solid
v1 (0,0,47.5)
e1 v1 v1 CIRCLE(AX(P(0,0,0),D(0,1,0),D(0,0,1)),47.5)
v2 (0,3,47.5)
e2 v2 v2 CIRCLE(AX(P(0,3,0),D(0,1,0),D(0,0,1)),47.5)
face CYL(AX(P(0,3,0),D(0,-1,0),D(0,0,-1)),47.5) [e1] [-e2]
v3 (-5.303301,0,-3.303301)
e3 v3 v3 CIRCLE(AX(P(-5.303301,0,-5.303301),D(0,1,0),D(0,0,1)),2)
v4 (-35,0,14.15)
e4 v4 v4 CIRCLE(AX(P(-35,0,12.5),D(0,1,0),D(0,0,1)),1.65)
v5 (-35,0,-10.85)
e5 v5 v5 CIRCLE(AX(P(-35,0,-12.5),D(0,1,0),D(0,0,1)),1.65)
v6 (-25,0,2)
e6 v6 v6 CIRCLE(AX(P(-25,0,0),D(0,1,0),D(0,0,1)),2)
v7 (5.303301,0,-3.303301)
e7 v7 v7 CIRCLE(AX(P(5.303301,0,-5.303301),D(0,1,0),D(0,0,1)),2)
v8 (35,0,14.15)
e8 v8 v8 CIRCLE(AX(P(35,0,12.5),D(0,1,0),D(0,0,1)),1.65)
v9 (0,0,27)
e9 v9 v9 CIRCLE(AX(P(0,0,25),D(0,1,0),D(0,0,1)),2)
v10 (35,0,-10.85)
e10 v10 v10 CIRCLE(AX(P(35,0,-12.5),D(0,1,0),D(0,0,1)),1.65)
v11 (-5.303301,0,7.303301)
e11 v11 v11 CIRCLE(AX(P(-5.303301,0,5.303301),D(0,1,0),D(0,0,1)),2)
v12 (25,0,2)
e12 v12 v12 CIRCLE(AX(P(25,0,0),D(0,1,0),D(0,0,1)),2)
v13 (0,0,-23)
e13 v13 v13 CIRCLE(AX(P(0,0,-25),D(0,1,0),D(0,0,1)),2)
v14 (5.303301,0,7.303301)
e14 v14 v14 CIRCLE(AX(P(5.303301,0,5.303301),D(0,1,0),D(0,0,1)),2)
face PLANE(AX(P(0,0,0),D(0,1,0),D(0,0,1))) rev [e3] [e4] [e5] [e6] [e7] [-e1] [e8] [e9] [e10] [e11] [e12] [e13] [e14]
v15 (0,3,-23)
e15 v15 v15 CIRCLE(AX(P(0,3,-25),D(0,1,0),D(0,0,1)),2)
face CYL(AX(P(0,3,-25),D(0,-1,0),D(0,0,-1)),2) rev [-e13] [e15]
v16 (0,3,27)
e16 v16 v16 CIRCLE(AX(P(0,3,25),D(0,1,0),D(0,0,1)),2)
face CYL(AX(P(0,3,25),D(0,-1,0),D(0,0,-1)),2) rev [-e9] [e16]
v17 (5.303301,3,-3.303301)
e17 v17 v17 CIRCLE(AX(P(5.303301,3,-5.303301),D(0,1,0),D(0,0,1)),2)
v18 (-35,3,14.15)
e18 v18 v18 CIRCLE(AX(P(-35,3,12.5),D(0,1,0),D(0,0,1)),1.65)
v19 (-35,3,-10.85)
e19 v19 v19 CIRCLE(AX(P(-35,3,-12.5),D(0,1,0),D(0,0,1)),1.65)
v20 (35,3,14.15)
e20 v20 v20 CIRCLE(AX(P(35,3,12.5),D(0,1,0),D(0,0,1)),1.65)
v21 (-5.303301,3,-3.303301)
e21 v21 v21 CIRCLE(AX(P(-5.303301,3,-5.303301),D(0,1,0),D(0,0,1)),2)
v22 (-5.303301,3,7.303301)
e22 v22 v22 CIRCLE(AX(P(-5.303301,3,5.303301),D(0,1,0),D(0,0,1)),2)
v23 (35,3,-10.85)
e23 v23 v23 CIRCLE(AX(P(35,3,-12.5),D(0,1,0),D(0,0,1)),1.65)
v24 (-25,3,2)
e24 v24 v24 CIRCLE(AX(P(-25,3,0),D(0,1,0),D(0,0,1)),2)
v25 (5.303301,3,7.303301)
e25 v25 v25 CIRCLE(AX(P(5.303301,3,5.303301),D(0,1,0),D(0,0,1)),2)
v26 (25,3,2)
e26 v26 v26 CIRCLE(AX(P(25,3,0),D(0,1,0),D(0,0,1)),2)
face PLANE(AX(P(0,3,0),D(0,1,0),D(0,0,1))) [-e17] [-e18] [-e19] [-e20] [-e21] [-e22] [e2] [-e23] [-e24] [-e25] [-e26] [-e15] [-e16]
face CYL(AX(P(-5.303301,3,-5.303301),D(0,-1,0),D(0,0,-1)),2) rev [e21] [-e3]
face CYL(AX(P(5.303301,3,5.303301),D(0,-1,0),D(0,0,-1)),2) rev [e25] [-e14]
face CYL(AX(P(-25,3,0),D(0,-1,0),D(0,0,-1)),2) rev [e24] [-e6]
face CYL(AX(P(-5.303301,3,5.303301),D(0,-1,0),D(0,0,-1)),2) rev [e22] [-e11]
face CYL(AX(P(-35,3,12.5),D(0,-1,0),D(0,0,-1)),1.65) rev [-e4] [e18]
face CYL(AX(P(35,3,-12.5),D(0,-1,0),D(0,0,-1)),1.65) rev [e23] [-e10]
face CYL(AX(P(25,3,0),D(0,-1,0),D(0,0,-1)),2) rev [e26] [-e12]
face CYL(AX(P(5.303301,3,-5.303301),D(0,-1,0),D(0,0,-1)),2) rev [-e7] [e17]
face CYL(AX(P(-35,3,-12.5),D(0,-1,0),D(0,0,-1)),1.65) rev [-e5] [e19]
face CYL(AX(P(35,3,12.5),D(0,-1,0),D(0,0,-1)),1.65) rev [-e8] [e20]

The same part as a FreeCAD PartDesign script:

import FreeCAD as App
import Part
import Sketcher
from FreeCAD import Vector
Q = App.Units.Quantity

doc = App.newDocument("Part")
body = doc.addObject("PartDesign::Body", "Body")

# Sketch on XZ plane
sketch1 = body.newObject("Sketcher::SketchObject", "Sketch")
sketch1.AttachmentSupport = (doc.getObject("XZ_Plane"), [""])
sketch1.MapMode = "FlatFace"
sketch1.addGeometry([
    Part.Circle(Vector(0, 0, 0), Vector(0, 0, 1), 47.5),  # 0
    Part.Circle(Vector(-35, -12.5, 0), Vector(0, 0, 1), 1.6),  # 1
    Part.Circle(Vector(-5.3, -5.3, 0), Vector(0, 0, 1), 2),  # 2
    Part.Circle(Vector(-35, 12.5, 0), Vector(0, 0, 1), 1.6),  # 3
    Part.Circle(Vector(-25, 0, 0), Vector(0, 0, 1), 2),  # 4
    Part.Circle(Vector(-5.3, 5.3, 0), Vector(0, 0, 1), 2),  # 5
    Part.Circle(Vector(0, -25, 0), Vector(0, 0, 1), 2),  # 6
    Part.Circle(Vector(5.3, -5.3, 0), Vector(0, 0, 1), 2),  # 7
    Part.Circle(Vector(25, 0, 0), Vector(0, 0, 1), 2),  # 8
    Part.Circle(Vector(35, -12.5, 0), Vector(0, 0, 1), 1.6),  # 9
    Part.Circle(Vector(5.3, 5.3, 0), Vector(0, 0, 1), 2),  # 10
    Part.Circle(Vector(0, 25, 0), Vector(0, 0, 1), 2),  # 11
    Part.Circle(Vector(35, 12.5, 0), Vector(0, 0, 1), 1.6),  # 12
], False)
sketch1.addConstraint([
    Sketcher.Constraint("Coincident", 0, 3, -1, 1),
    Sketcher.Constraint("Equal", 1, 3),
    Sketcher.Constraint("Equal", 2, 4),
    Sketcher.Constraint("Equal", 4, 5),
    Sketcher.Constraint("Equal", 5, 6),
    Sketcher.Constraint("Equal", 6, 7),
    Sketcher.Constraint("Equal", 7, 8),
    Sketcher.Constraint("Equal", 3, 9),
    Sketcher.Constraint("Equal", 8, 10),
    Sketcher.Constraint("Equal", 10, 11),
    Sketcher.Constraint("Equal", 9, 12),
    Sketcher.Constraint("Symmetric", 5, 3, 7, 3, -1, 1),
    Sketcher.Constraint("Symmetric", 4, 3, 8, 3, -1, 1),
    Sketcher.Constraint("Symmetric", 3, 3, 9, 3, -1, 1),
    Sketcher.Constraint("Symmetric", 2, 3, 10, 3, -1, 1),
    Sketcher.Constraint("Symmetric", 6, 3, 11, 3, -1, 1),
    Sketcher.Constraint("Symmetric", 1, 3, 12, 3, -1, 1),
    Sketcher.Constraint("Symmetric", 2, 3, 7, 3, -2),
    Sketcher.Constraint("Symmetric", 1, 3, 9, 3, -2),
    Sketcher.Constraint("PointOnObject", 4, 3, -1),
    Sketcher.Constraint("PointOnObject", 6, 3, -2),
    Sketcher.Constraint("Diameter", 0, Q("95 mm")),
    Sketcher.Constraint("Diameter", 2, Q("4 mm")),
    Sketcher.Constraint("Diameter", 1, Q("3.3 mm")),
    Sketcher.Constraint("DistanceX", 1, 3, -1, 1, Q("35 mm")),
    Sketcher.Constraint("DistanceX", 4, 3, -1, 1, Q("25 mm")),
    Sketcher.Constraint("DistanceY", 6, 3, -1, 1, Q("25 mm")),
    Sketcher.Constraint("DistanceY", 1, 3, 3, 3, Q("25 mm")),
    Sketcher.Constraint("DistanceX", 2, 3, -1, 1, Q("5.303301 mm")),
    Sketcher.Constraint("DistanceY", 2, 3, -1, 1, Q("5.303301 mm")),
])
pad1 = body.newObject("PartDesign::Pad", "Pad")
pad1.Profile = sketch1
pad1.Length = 3
pad1.Reversed = True

doc.recompute()
